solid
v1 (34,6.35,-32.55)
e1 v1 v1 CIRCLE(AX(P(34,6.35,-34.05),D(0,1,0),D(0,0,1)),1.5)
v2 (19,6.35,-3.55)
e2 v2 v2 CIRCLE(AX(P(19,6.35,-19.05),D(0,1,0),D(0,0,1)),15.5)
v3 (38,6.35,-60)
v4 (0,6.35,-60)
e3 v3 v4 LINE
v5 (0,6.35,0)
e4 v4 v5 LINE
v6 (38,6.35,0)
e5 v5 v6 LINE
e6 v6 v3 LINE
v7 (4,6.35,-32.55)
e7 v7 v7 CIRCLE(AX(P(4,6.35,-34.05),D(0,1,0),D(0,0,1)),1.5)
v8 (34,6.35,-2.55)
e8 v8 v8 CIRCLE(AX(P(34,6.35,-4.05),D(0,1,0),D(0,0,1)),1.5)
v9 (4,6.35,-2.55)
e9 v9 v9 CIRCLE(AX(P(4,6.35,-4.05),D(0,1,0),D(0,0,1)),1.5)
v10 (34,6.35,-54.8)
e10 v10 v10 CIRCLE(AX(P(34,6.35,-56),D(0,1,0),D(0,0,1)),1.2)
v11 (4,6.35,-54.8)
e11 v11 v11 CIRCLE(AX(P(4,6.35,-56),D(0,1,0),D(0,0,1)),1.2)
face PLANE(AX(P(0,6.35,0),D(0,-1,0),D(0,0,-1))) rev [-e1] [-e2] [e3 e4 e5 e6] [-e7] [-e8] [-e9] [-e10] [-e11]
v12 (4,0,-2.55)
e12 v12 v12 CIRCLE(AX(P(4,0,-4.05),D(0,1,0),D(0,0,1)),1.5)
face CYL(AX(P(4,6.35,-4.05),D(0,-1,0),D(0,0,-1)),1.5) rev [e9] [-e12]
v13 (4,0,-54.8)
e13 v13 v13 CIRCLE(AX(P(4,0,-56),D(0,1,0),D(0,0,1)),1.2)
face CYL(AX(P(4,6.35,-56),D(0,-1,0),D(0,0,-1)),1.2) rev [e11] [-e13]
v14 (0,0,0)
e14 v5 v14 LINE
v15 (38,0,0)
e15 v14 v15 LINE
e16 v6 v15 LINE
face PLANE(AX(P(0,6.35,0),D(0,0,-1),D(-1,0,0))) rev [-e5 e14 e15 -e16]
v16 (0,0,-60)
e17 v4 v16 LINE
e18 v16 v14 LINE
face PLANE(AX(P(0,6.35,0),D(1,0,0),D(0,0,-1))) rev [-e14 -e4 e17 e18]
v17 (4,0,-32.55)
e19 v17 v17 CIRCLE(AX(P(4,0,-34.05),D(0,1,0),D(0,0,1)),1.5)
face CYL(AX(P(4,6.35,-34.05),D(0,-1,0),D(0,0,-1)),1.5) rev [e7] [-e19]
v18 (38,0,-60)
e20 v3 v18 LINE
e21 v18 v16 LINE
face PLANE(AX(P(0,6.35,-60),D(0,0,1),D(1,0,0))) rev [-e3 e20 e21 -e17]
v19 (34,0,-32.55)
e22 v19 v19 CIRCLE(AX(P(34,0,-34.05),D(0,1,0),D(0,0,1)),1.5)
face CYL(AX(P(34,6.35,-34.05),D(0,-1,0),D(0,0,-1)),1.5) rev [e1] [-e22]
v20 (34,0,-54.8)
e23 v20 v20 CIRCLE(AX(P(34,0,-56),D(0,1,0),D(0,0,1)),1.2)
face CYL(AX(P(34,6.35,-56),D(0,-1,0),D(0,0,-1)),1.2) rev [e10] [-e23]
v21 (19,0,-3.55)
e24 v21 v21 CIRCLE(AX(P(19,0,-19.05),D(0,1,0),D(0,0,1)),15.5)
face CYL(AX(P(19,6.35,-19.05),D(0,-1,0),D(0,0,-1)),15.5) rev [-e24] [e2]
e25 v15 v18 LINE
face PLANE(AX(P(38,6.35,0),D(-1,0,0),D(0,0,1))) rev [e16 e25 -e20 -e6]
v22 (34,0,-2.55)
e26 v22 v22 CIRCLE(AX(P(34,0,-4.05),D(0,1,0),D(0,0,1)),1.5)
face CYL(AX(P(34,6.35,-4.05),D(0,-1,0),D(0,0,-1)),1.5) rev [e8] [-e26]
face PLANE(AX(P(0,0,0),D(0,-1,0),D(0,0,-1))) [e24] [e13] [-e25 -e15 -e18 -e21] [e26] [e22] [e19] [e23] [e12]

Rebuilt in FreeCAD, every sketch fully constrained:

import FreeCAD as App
import Part
import Sketcher

V = App.Vector

doc = App.newDocument("Part")
body = doc.addObject("PartDesign::Body", "Body")

# Sketch on XZ plane
sketch1 = body.newObject("Sketcher::SketchObject", "Sketch")
sketch1.AttachmentSupport = (doc.getObject("XZ_Plane"), [""])
sketch1.MapMode = "FlatFace"
sketch1.addGeometry([
    Part.LineSegment(V(0, -60, 0), V(0, 0, 0)),  # 0
    Part.LineSegment(V(0, 0, 0), V(38, 0, 0)),  # 1
    Part.LineSegment(V(38, 0, 0), V(38, -60, 0)),  # 2
    Part.LineSegment(V(38, -60, 0), V(0, -60, 0)),  # 3
    Part.Circle(V(4, -4, 0), V(0, 0, 1), 1.5),  # 4
    Part.Circle(V(34, -4, 0), V(0, 0, 1), 1.5),  # 5
    Part.Circle(V(19, -19.1, 0), V(0, 0, 1), 15.5),  # 6
    Part.Circle(V(4, -34, 0), V(0, 0, 1), 1.5),  # 7
    Part.Circle(V(4, -56, 0), V(0, 0, 1), 1.2),  # 8
    Part.Circle(V(34, -34, 0), V(0, 0, 1), 1.5),  # 9
    Part.Circle(V(34, -56, 0), V(0, 0, 1), 1.2),  # 10
], False)
sketch1.addConstraint([
    Sketcher.Constraint("Coincident", 0, 2, 1, 1),
    Sketcher.Constraint("Coincident", 1, 2, 2, 1),
    Sketcher.Constraint("Coincident", 2, 2, 3, 1),
    Sketcher.Constraint("Coincident", 3, 2, 0, 1),
    Sketcher.Constraint("Vertical", 0),
    Sketcher.Constraint("Horizontal", 1),
    Sketcher.Constraint("Vertical", 2),
    Sketcher.Constraint("Horizontal", 3),
    Sketcher.Constraint("Coincident", 0, 2, -1, 1),
    Sketcher.Constraint("Equal", 4, 5),
    Sketcher.Constraint("Equal", 5, 7),
    Sketcher.Constraint("Equal", 7, 9),
    Sketcher.Constraint("Equal", 8, 10),
    Sketcher.Constraint("Horizontal", 4, 3, 5, 3),
    Sketcher.Constraint("Horizontal", 7, 3, 9, 3),
    Sketcher.Constraint("Horizontal", 8, 3, 10, 3),
    Sketcher.Constraint("Vertical", 4, 3, 7, 3),
    Sketcher.Constraint("Vertical", 7, 3, 8, 3),
    Sketcher.Constraint("Vertical", 5, 3, 9, 3),
    Sketcher.Constraint("Vertical", 9, 3, 10, 3),
    Sketcher.Constraint("Diameter", 4, 3.0),
    Sketcher.Constraint("Diameter", 6, 31.0),
    Sketcher.Constraint("Diameter", 8, 2.4),
    Sketcher.Constraint("DistanceX", 1, 1, 1, 2, 38.0),
    Sketcher.Constraint("DistanceY", 0, 1, 0, 2, 60.0),
    Sketcher.Constraint("DistanceX", -1, 1, 4, 3, 4.0),
    Sketcher.Constraint("DistanceX", -1, 1, 5, 3, 34.0),
    Sketcher.Constraint("DistanceX", -1, 1, 6, 3, 19.0),
    Sketcher.Constraint("DistanceY", 8, 3, -1, 1, 56.0),
    Sketcher.Constraint("DistanceY", 6, 3, 4, 3, 15.0),
    Sketcher.Constraint("DistanceY", 7, 3, 6, 3, 15.0),
    Sketcher.Constraint("DistanceY", 4, 3, -1, 1, 4.05),
])
pad1 = body.newObject("PartDesign::Pad", "Pad")
pad1.Profile = sketch1
pad1.Length = 6.35
pad1.Reversed = True

doc.recompute()
